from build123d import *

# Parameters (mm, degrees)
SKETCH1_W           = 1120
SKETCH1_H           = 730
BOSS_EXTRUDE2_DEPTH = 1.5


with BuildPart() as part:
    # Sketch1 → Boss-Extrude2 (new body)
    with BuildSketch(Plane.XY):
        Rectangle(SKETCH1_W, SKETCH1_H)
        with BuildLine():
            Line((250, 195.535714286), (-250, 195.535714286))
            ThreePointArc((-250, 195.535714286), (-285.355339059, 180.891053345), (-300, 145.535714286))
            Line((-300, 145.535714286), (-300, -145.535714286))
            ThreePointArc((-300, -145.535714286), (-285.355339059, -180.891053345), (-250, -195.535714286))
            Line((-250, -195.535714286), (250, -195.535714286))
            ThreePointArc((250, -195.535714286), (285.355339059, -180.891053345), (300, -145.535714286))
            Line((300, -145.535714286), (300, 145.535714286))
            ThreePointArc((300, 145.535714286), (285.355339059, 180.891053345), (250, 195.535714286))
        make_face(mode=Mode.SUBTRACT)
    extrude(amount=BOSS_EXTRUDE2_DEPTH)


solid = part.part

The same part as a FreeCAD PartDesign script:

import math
import FreeCAD as App
import Part
import Sketcher

V = App.Vector

doc = App.newDocument("Part")
params = doc.addObject("Spreadsheet::Sheet", "Params")
for row, (alias, value) in enumerate([
    ("sketch1_radius", "50 mm"),
    ("sketch1_width", "1120 mm"),
    ("sketch1_width2", "500 mm"),
    ("sketch1_height", "730 mm"),
    ("pad1_length", "1.5 mm"),
], start=1):
    params.set(f"A{row}", alias)
    params.set(f"B{row}", "=" + value)
    params.setAlias(f"B{row}", alias)

body = doc.addObject("PartDesign::Body", "Body")

# Sketch on XY plane
sketch1 = body.newObject("Sketcher::SketchObject", "Sketch")
sketch1.AttachmentSupport = (doc.getObject("XY_Plane"), [""])
sketch1.MapMode = "FlatFace"
sketch1.addGeometry(Part.LineSegment(V(-560, 365, 0), V(-560, -365, 0)), False)
sketch1.addGeometry(Part.LineSegment(V(-560, -365, 0), V(560, -365, 0)), False)
sketch1.addGeometry(Part.LineSegment(V(560, -365, 0), V(560, 365, 0)), False)
sketch1.addGeometry(Part.LineSegment(V(560, 365, 0), V(-560, 365, 0)), False)
sketch1.addGeometry(Part.LineSegment(V(-250, 196, 0), V(250, 196, 0)), False)
sketch1.addGeometry(Part.ArcOfCircle(Part.Circle(V(250, 146, 0), V(0, 0, 1), 50), math.radians(0), math.radians(90)), False)
sketch1.addGeometry(Part.LineSegment(V(300, 146, 0), V(300, -146, 0)), False)
sketch1.addGeometry(Part.ArcOfCircle(Part.Circle(V(250, -146, 0), V(0, 0, 1), 50), math.radians(-90), math.radians(0)), False)
sketch1.addGeometry(Part.LineSegment(V(250, -196, 0), V(-250, -196, 0)), False)
sketch1.addGeometry(Part.ArcOfCircle(Part.Circle(V(-250, -146, 0), V(0, 0, 1), 50), math.radians(-180), math.radians(-90)), False)
sketch1.addGeometry(Part.LineSegment(V(-300, -146, 0), V(-300, 146, 0)), False)
sketch1.addGeometry(Part.ArcOfCircle(Part.Circle(V(-250, 146, 0), V(0, 0, 1), 50), math.radians(90), math.radians(180)), False)
sketch1.addConstraint(Sketcher.Constraint("Coincident", 0, 2, 1, 1))
sketch1.addConstraint(Sketcher.Constraint("Coincident", 1, 2, 2, 1))
sketch1.addConstraint(Sketcher.Constraint("Coincident", 2, 2, 3, 1))
sketch1.addConstraint(Sketcher.Constraint("Coincident", 3, 2, 0, 1))
sketch1.addConstraint(Sketcher.Constraint("Tangent", 4, 2, 5, 2))
sketch1.addConstraint(Sketcher.Constraint("Tangent", 5, 1, 6, 1))
sketch1.addConstraint(Sketcher.Constraint("Tangent", 6, 2, 7, 2))
sketch1.addConstraint(Sketcher.Constraint("Tangent", 7, 1, 8, 1))
sketch1.addConstraint(Sketcher.Constraint("Tangent", 8, 2, 9, 2))
sketch1.addConstraint(Sketcher.Constraint("Tangent", 9, 1, 10, 1))
sketch1.addConstraint(Sketcher.Constraint("Tangent", 10, 2, 11, 2))
sketch1.addConstraint(Sketcher.Constraint("Tangent", 11, 1, 4, 1))
sketch1.addConstraint(Sketcher.Constraint("Vertical", 0))
sketch1.addConstraint(Sketcher.Constraint("Horizontal", 1))
sketch1.addConstraint(Sketcher.Constraint("Vertical", 2))
sketch1.addConstraint(Sketcher.Constraint("Horizontal", 3))
sketch1.addConstraint(Sketcher.Constraint("Horizontal", 4))
sketch1.addConstraint(Sketcher.Constraint("Vertical", 6))
sketch1.addConstraint(Sketcher.Constraint("Horizontal", 8))
sketch1.addConstraint(Sketcher.Constraint("Vertical", 10))
sketch1.addConstraint(Sketcher.Constraint("Equal", 5, 7))
sketch1.addConstraint(Sketcher.Constraint("Equal", 7, 9))
sketch1.addConstraint(Sketcher.Constraint("Equal", 9, 11))
sketch1.addConstraint(Sketcher.Constraint("Symmetric", 5, 3, 9, 3, -1, 1))
sketch1.addConstraint(Sketcher.Constraint("Symmetric", 0, 2, 2, 2, -1, 1))
sketch1.addConstraint(Sketcher.Constraint("Radius", 5, 50.0))
sketch1.addConstraint(Sketcher.Constraint("DistanceX", 1, 1, 1, 2, 1120.0))
sketch1.addConstraint(Sketcher.Constraint("DistanceX", 4, 1, 4, 2, 500.0))
sketch1.addConstraint(Sketcher.Constraint("DistanceY", 0, 2, 0, 1, 730.0))
sketch1.addConstraint(Sketcher.Constraint("DistanceY", 6, 2, 6, 1, 291.071429))
sketch1.setExpression("Constraints[25]", "Params.sketch1_radius")
sketch1.setExpression("Constraints[26]", "Params.sketch1_width")
sketch1.setExpression("Constraints[27]", "Params.sketch1_width2")
sketch1.setExpression("Constraints[28]", "Params.sketch1_height")
pad1 = body.newObject("PartDesign::Pad", "Pad")
pad1.Profile = sketch1
pad1.setExpression("Length", "Params.pad1_length")

doc.recompute()
